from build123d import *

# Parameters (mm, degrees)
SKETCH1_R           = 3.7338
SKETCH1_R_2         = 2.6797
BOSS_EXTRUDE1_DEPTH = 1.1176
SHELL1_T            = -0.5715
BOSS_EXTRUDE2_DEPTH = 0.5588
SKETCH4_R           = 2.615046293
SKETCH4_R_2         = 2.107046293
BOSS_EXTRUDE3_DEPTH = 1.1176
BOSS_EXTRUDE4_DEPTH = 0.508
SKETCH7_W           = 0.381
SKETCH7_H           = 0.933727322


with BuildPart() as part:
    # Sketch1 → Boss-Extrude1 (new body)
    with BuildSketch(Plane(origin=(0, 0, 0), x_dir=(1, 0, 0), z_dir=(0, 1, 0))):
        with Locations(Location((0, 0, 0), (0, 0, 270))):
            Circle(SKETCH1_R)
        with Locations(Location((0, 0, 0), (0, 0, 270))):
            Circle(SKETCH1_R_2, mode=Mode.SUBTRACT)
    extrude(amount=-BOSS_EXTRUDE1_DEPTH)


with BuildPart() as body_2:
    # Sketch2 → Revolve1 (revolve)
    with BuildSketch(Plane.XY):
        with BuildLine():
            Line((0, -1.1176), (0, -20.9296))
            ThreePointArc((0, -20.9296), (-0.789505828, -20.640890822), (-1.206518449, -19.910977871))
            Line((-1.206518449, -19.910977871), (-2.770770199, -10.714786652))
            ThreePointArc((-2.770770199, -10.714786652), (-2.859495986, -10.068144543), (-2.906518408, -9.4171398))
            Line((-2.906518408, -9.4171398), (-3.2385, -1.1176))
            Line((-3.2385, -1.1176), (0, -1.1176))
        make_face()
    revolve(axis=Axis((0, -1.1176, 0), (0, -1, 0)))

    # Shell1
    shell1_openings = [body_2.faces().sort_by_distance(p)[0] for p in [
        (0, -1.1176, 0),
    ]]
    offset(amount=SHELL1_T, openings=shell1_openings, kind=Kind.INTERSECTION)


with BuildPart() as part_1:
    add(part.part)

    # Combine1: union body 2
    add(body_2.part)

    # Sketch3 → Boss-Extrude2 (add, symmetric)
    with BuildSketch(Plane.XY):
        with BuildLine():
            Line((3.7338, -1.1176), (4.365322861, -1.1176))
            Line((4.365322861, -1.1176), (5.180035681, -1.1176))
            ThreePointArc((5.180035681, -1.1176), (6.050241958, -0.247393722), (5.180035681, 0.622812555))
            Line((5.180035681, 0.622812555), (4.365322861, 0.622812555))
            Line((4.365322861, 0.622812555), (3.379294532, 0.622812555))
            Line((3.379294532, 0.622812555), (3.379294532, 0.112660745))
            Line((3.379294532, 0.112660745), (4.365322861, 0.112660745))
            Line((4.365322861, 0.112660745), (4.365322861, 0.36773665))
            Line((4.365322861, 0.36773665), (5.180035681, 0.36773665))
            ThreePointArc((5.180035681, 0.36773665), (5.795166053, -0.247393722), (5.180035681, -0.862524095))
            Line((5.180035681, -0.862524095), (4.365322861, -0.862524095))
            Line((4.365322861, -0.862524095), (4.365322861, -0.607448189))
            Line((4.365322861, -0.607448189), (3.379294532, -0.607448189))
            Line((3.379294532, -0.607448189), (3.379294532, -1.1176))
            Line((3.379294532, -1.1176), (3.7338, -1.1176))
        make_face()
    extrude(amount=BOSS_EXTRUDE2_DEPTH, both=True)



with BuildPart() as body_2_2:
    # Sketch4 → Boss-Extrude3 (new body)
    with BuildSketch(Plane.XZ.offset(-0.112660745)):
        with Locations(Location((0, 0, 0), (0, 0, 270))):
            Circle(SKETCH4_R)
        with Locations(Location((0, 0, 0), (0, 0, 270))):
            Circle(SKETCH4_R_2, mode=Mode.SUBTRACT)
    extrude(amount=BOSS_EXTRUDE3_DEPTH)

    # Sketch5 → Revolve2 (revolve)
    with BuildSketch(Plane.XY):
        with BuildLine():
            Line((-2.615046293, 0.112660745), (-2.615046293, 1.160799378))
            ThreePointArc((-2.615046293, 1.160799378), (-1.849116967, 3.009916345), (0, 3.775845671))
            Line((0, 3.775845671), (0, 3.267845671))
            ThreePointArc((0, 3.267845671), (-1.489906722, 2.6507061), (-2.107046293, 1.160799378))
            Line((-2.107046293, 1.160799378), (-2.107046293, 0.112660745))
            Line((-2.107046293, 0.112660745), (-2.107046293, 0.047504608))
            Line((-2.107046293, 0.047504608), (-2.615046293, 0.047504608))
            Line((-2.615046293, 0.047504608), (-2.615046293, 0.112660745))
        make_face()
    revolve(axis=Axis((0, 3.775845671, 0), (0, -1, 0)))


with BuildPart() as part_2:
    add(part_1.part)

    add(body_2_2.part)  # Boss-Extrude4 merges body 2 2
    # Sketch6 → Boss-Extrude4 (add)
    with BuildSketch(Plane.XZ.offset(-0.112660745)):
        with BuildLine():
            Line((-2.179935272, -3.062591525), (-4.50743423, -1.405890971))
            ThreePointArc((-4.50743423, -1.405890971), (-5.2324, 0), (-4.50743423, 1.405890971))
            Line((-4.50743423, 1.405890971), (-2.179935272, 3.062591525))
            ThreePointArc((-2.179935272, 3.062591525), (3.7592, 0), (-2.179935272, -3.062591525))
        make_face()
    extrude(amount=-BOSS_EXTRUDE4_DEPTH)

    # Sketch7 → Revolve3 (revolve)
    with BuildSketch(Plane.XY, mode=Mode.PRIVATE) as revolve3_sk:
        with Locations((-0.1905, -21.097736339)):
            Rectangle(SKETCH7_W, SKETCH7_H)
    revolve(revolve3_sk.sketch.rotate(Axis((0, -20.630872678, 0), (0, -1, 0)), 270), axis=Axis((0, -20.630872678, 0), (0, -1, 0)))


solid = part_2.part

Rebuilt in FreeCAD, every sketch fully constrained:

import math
import FreeCAD as App
import Part
import Sketcher
from FreeCAD import Vector
Q = App.Units.Quantity


def faces_at(feature, points):
    """Names of the faces that lie closest to the given points."""
    faces = feature.Shape.Faces
    near = lambda p: min(range(len(faces)), key=lambda i: faces[i].distToShape(Part.Vertex(*p))[0])
    return sorted({f"Face{near(p) + 1}" for p in points})


def add_polygon(sketch, points):
    """Adds a closed chain of lines whose ends are joined by coincident constraints."""
    first, n = sketch.GeometryCount, len(points)
    for a, b in zip(points, points[1:] + points[:1]):
        sketch.addGeometry(Part.LineSegment(App.Vector(*a, 0), App.Vector(*b, 0)), False)
    for i in range(n):
        sketch.addConstraint(Sketcher.Constraint("Coincident", first + i, 2, first + (i + 1) % n, 1))

doc = App.newDocument("Part")
body = doc.addObject("PartDesign::Body", "Body")

# Sketch on XZ plane
sketch1 = doc.addObject("Sketcher::SketchObject", "Sketch")
body.addObject(sketch1)
sketch1.AttachmentSupport = (doc.XZ_Plane, [""])
sketch1.MapMode = "FlatFace"
sketch1.addGeometry(Part.Circle(Vector(0, 0, 0), Vector(0, 0, 1), 3.7), False)
sketch1.addGeometry(Part.Circle(Vector(0, 0, 0), Vector(0, 0, 1), 2.7), False)
sketch1.addConstraint(Sketcher.Constraint("Coincident", 0, 3, -1, 1))
sketch1.addConstraint(Sketcher.Constraint("Coincident", 1, 3, -1, 1))
sketch1.addConstraint(Sketcher.Constraint("Diameter", 0, Q("0.294 in")))
sketch1.addConstraint(Sketcher.Constraint("Diameter", 1, Q("0.211 in")))
pad1 = doc.addObject("PartDesign::Pad", "Pad")
body.addObject(pad1)
pad1.Profile = sketch1
pad1.Length = Q("0.044 in")
body2 = doc.addObject("PartDesign::Body", "Body001")

# Sketch on XY plane
sketch2 = doc.addObject("Sketcher::SketchObject", "Sketch001")
body2.addObject(sketch2)
sketch2.AttachmentSupport = (doc.getObject("XY_Plane001"), [""])
sketch2.MapMode = "FlatFace"
sketch2.addGeometry(Part.LineSegment(Vector(0, -20.9, 0), Vector(0, -1.1, 0)), False)
sketch2.addGeometry(Part.LineSegment(Vector(0, -1.1, 0), Vector(-3.2, -1.1, 0)), False)
sketch2.addGeometry(Part.LineSegment(Vector(-3.2, -1.1, 0), Vector(-2.9, -9.4, 0)), False)
sketch2.addGeometry(Part.ArcOfCircle(Part.Circle(Vector(7.2, -9, 0), Vector(0, 0, 1), 10.2), math.radians(-177.71), math.radians(-170.35)), False)
sketch2.addGeometry(Part.LineSegment(Vector(-2.8, -10.7, 0), Vector(-1.2, -19.9, 0)), False)
sketch2.addGeometry(Part.ArcOfCircle(Part.Circle(Vector(0, -19.7, 0), Vector(0, 0, 1), 1.2), math.radians(-170), math.radians(-90)), False)
sketch2.addConstraint(Sketcher.Constraint("Coincident", 0, 2, 1, 1))
sketch2.addConstraint(Sketcher.Constraint("Coincident", 1, 2, 2, 1))
sketch2.addConstraint(Sketcher.Constraint("Tangent", 2, 2, 3, 1))
sketch2.addConstraint(Sketcher.Constraint("Tangent", 3, 2, 4, 1))
sketch2.addConstraint(Sketcher.Constraint("Tangent", 4, 2, 5, 1))
sketch2.addConstraint(Sketcher.Constraint("Coincident", 5, 2, 0, 1))
sketch2.addConstraint(Sketcher.Constraint("Vertical", 0))
sketch2.addConstraint(Sketcher.Constraint("Horizontal", 1))
sketch2.addConstraint(Sketcher.Constraint("PointOnObject", 5, 3, -2))
sketch2.addConstraint(Sketcher.Constraint("PointOnObject", 0, 2, -2))
sketch2.addConstraint(Sketcher.Constraint("Radius", 3, Q("0.4 in")))
sketch2.addConstraint(Sketcher.Constraint("DistanceY", 0, 1, 0, 2, Q("0.78 in")))
sketch2.addConstraint(Sketcher.Constraint("DistanceX", 1, 2, 1, 1, Q("0.1275 in")))
sketch2.addConstraint(Sketcher.Constraint("DistanceY", 0, 2, -1, 1, Q("0.044 in")))
sketch2.addConstraint(Sketcher.Constraint("Radius", 5, Q("1.223848 mm")))
sketch2.addConstraint(Sketcher.Constraint("DistanceX", 2, 2, 4, 2, Q("1.7 mm")))
sketch2.addConstraint(Sketcher.Constraint("Distance", 4, Q("9.32828 mm")))
revolution = doc.addObject("PartDesign::Revolution", "Revolution")
body2.addObject(revolution)
revolution.Profile = sketch2
revolution.ReferenceAxis = (sketch2, ["V_Axis"])
revolution.Angle = 360
doc.recompute()

thickness = doc.addObject("PartDesign::Thickness", "Thickness")
body2.addObject(thickness)
thickness.Base = (revolution, faces_at(revolution, [(0, -1.118, 0)]))
thickness.Value = Q("0.0225 in")
thickness.Reversed = True
thickness.Join = "Intersection"
doc.recompute()

boolean = doc.addObject("PartDesign::Boolean", "Boolean")
body.addObject(boolean)
boolean.Type = "Fuse"
boolean.addObjects([body2])

# Sketch on XY plane
sketch3 = doc.addObject("Sketcher::SketchObject", "Sketch002")
body.addObject(sketch3)
sketch3.AttachmentSupport = (doc.XY_Plane, [""])
sketch3.MapMode = "FlatFace"
sketch3.addGeometry(Part.ArcOfCircle(Part.Circle(Vector(5.18, -0.25, 0), Vector(0, 0, 1), 0.87), math.radians(-90), math.radians(90)), False)
sketch3.addGeometry(Part.LineSegment(Vector(5.18, 0.62, 0), Vector(3.38, 0.62, 0)), False)
sketch3.addGeometry(Part.LineSegment(Vector(3.38, 0.62, 0), Vector(3.38, 0.11, 0)), False)
sketch3.addGeometry(Part.LineSegment(Vector(3.38, 0.11, 0), Vector(4.37, 0.11, 0)), False)
sketch3.addGeometry(Part.LineSegment(Vector(4.37, 0.11, 0), Vector(4.37, 0.37, 0)), False)
sketch3.addGeometry(Part.LineSegment(Vector(4.37, 0.37, 0), Vector(5.18, 0.37, 0)), False)
sketch3.addGeometry(Part.ArcOfCircle(Part.Circle(Vector(5.18, -0.25, 0), Vector(0, 0, 1), 0.62), math.radians(-90), math.radians(90)), False)
sketch3.addGeometry(Part.LineSegment(Vector(5.18, -0.86, 0), Vector(4.37, -0.86, 0)), False)
sketch3.addGeometry(Part.LineSegment(Vector(4.37, -0.86, 0), Vector(4.37, -0.61, 0)), False)
sketch3.addGeometry(Part.LineSegment(Vector(4.37, -0.61, 0), Vector(3.38, -0.61, 0)), False)
sketch3.addGeometry(Part.LineSegment(Vector(3.38, -0.61, 0), Vector(3.38, -1.12, 0)), False)
sketch3.addGeometry(Part.LineSegment(Vector(3.38, -1.12, 0), Vector(5.18, -1.12, 0)), False)
sketch3.addConstraint(Sketcher.Constraint("Tangent", 0, 2, 1, 1))
sketch3.addConstraint(Sketcher.Constraint("Coincident", 1, 2, 2, 1))
sketch3.addConstraint(Sketcher.Constraint("Coincident", 2, 2, 3, 1))
sketch3.addConstraint(Sketcher.Constraint("Coincident", 3, 2, 4, 1))
sketch3.addConstraint(Sketcher.Constraint("Coincident", 4, 2, 5, 1))
sketch3.addConstraint(Sketcher.Constraint("Tangent", 5, 2, 6, 2))
sketch3.addConstraint(Sketcher.Constraint("Tangent", 6, 1, 7, 1))
sketch3.addConstraint(Sketcher.Constraint("Coincident", 7, 2, 8, 1))
sketch3.addConstraint(Sketcher.Constraint("Coincident", 8, 2, 9, 1))
sketch3.addConstraint(Sketcher.Constraint("Coincident", 9, 2, 10, 1))
sketch3.addConstraint(Sketcher.Constraint("Coincident", 10, 2, 11, 1))
sketch3.addConstraint(Sketcher.Constraint("Tangent", 11, 2, 0, 1))
sketch3.addConstraint(Sketcher.Constraint("Horizontal", 1))
sketch3.addConstraint(Sketcher.Constraint("Vertical", 2))
sketch3.addConstraint(Sketcher.Constraint("Horizontal", 3))
sketch3.addConstraint(Sketcher.Constraint("Vertical", 4))
sketch3.addConstraint(Sketcher.Constraint("Horizontal", 5))
sketch3.addConstraint(Sketcher.Constraint("Horizontal", 7))
sketch3.addConstraint(Sketcher.Constraint("Vertical", 8))
sketch3.addConstraint(Sketcher.Constraint("Horizontal", 9))
sketch3.addConstraint(Sketcher.Constraint("Vertical", 10))
sketch3.addConstraint(Sketcher.Constraint("Horizontal", 11))
sketch3.addConstraint(Sketcher.Constraint("Coincident", 6, 3, 0, 3))
sketch3.addConstraint(Sketcher.Constraint("Vertical", 4, 2, 7, 2))
sketch3.addConstraint(Sketcher.Constraint("Vertical", 2, 2, 9, 2))
sketch3.addConstraint(Sketcher.Constraint("Equal", 4, 8))
sketch3.addConstraint(Sketcher.Constraint("DistanceY", 10, 2, -1, 1, Q("0.044 in")))
sketch3.addConstraint(Sketcher.Constraint("Radius", 6, Q("0.61513 mm")))
sketch3.addConstraint(Sketcher.Constraint("Radius", 0, Q("0.870206 mm")))
sketch3.addConstraint(Sketcher.Constraint("DistanceX", 1, 2, 1, 1, Q("1.800741 mm")))
sketch3.addConstraint(Sketcher.Constraint("DistanceX", 3, 1, 3, 2, Q("0.986028 mm")))
sketch3.addConstraint(Sketcher.Constraint("DistanceY", 2, 2, 2, 1, Q("0.510152 mm")))
sketch3.addConstraint(Sketcher.Constraint("DistanceX", -1, 1, 0, 3, Q("5.180036 mm")))
pad2 = doc.addObject("PartDesign::Pad", "Pad001")
body.addObject(pad2)
pad2.Profile = sketch3
pad2.Length = Q("0.044 in")
pad2.Midplane = True
body3 = doc.addObject("PartDesign::Body", "Body002")

# Sketch on XZ plane
sketch4 = doc.addObject("Sketcher::SketchObject", "Sketch003")
body3.addObject(sketch4)
sketch4.AttachmentSupport = (doc.getObject("XZ_Plane002"), [""])
sketch4.MapMode = "FlatFace"
sketch4.AttachmentOffset = App.Placement(Vector(0, 0, -0.112661), App.Rotation())
sketch4.addGeometry(Part.Circle(Vector(0, 0, 0), Vector(0, 0, 1), 2.6), False)
sketch4.addGeometry(Part.Circle(Vector(0, 0, 0), Vector(0, 0, 1), 2.1), False)
sketch4.addConstraint(Sketcher.Constraint("Coincident", 0, 3, -1, 1))
sketch4.addConstraint(Sketcher.Constraint("Coincident", 1, 3, -1, 1))
sketch4.addConstraint(Sketcher.Constraint("Diameter", 0, Q("5.230093 mm")))
sketch4.addConstraint(Sketcher.Constraint("Diameter", 1, Q("4.214093 mm")))
pad3 = doc.addObject("PartDesign::Pad", "Pad002")
body3.addObject(pad3)
pad3.Profile = sketch4
pad3.Length = Q("0.044 in")

# Sketch on XY plane
sketch5 = doc.addObject("Sketcher::SketchObject", "Sketch004")
body3.addObject(sketch5)
sketch5.AttachmentSupport = (doc.getObject("XY_Plane002"), [""])
sketch5.MapMode = "FlatFace"
sketch5.addGeometry(Part.ArcOfCircle(Part.Circle(Vector(0, 1.2, 0), Vector(0, 0, 1), 2.6), math.radians(90), math.radians(180)), False)
sketch5.addGeometry(Part.LineSegment(Vector(-2.6, 1.2, 0), Vector(-2.6, 0, 0)), False)
sketch5.addGeometry(Part.LineSegment(Vector(-2.6, 0, 0), Vector(-2.1, 0, 0)), False)
sketch5.addGeometry(Part.LineSegment(Vector(-2.1, 0, 0), Vector(-2.1, 1.2, 0)), False)
sketch5.addGeometry(Part.ArcOfCircle(Part.Circle(Vector(0, 1.2, 0), Vector(0, 0, 1), 2.1), math.radians(90), math.radians(180)), False)
sketch5.addGeometry(Part.LineSegment(Vector(0, 3.3, 0), Vector(0, 3.8, 0)), False)
sketch5.addConstraint(Sketcher.Constraint("Tangent", 0, 2, 1, 1))
sketch5.addConstraint(Sketcher.Constraint("Coincident", 1, 2, 2, 1))
sketch5.addConstraint(Sketcher.Constraint("Coincident", 2, 2, 3, 1))
sketch5.addConstraint(Sketcher.Constraint("Tangent", 3, 2, 4, 2))
sketch5.addConstraint(Sketcher.Constraint("Coincident", 4, 1, 5, 1))
sketch5.addConstraint(Sketcher.Constraint("Coincident", 5, 2, 0, 1))
sketch5.addConstraint(Sketcher.Constraint("Vertical", 1))
sketch5.addConstraint(Sketcher.Constraint("Horizontal", 2))
sketch5.addConstraint(Sketcher.Constraint("Vertical", 3))
sketch5.addConstraint(Sketcher.Constraint("Vertical", 5))
sketch5.addConstraint(Sketcher.Constraint("Coincident", 4, 3, 0, 3))
sketch5.addConstraint(Sketcher.Constraint("PointOnObject", 0, 3, -2))
sketch5.addConstraint(Sketcher.Constraint("PointOnObject", 4, 1, -2))
sketch5.addConstraint(Sketcher.Constraint("DistanceX", 2, 1, 2, 2, Q("0.02 in")))
sketch5.addConstraint(Sketcher.Constraint("Radius", 0, Q("2.615046 mm")))
sketch5.addConstraint(Sketcher.Constraint("DistanceY", -1, 1, 0, 3, Q("1.160799 mm")))
sketch5.addConstraint(Sketcher.Constraint("DistanceY", 1, 2, 1, 1, Q("1.113295 mm")))
revolution2 = doc.addObject("PartDesign::Revolution", "Revolution001")
body3.addObject(revolution2)
revolution2.Profile = sketch5
revolution2.ReferenceAxis = (sketch5, ["V_Axis"])
revolution2.Angle = 360
body.AllowCompound = True
doc.recompute()

boolean2 = doc.addObject("PartDesign::Boolean", "Boolean001")
body.addObject(boolean2)
boolean2.Type = "Fuse"
boolean2.addObjects([body3])

# Sketch on XZ plane
sketch6 = doc.addObject("Sketcher::SketchObject", "Sketch005")
body.addObject(sketch6)
sketch6.AttachmentSupport = (doc.XZ_Plane, [""])
sketch6.MapMode = "FlatFace"
sketch6.AttachmentOffset = App.Placement(Vector(0, 0, -0.112661), App.Rotation())
sketch6.addGeometry(Part.LineSegment(Vector(-4.5, -1.4, 0), Vector(-2.2, -3.1, 0)), False)
sketch6.addGeometry(Part.ArcOfCircle(Part.Circle(Vector(0, 0, 0), Vector(0, 0, 1), 3.8), math.radians(-125), math.radians(125)), False)
sketch6.addGeometry(Part.LineSegment(Vector(-2.2, 3.1, 0), Vector(-4.5, 1.4, 0)), False)
sketch6.addGeometry(Part.ArcOfCircle(Part.Circle(Vector(-3.5, 0, 0), Vector(0, 0, 1), 1.7), math.radians(125), math.radians(235)), False)
sketch6.addConstraint(Sketcher.Constraint("Tangent", 0, 2, 1, 1))
sketch6.addConstraint(Sketcher.Constraint("Tangent", 1, 2, 2, 1))
sketch6.addConstraint(Sketcher.Constraint("Tangent", 2, 2, 3, 1))
sketch6.addConstraint(Sketcher.Constraint("Tangent", 3, 2, 0, 1))
sketch6.addConstraint(Sketcher.Constraint("Coincident", 1, 3, -1, 1))
sketch6.addConstraint(Sketcher.Constraint("PointOnObject", 3, 3, -1))
sketch6.addConstraint(Sketcher.Constraint("Radius", 1, Q("0.148 in")))
sketch6.addConstraint(Sketcher.Constraint("Radius", 3, Q("1.725671 mm")))
sketch6.addConstraint(Sketcher.Constraint("DistanceY", 3, 2, 2, 2, Q("0.1107001 in")))
pad4 = doc.addObject("PartDesign::Pad", "Pad003")
body.addObject(pad4)
pad4.Profile = sketch6
pad4.Length = Q("0.02 in")
pad4.Reversed = True

# Sketch on XY plane
sketch7 = doc.addObject("Sketcher::SketchObject", "Sketch006")
body.addObject(sketch7)
sketch7.AttachmentSupport = (doc.XY_Plane, [""])
sketch7.MapMode = "FlatFace"
add_polygon(sketch7, [(-0.38, -20.63), (-0.38, -21.56), (0, -21.56), (0, -20.63)])  # lines 0-3
sketch7.addConstraint(Sketcher.Constraint("Vertical", 0))
sketch7.addConstraint(Sketcher.Constraint("Horizontal", 1))
sketch7.addConstraint(Sketcher.Constraint("Vertical", 2))
sketch7.addConstraint(Sketcher.Constraint("Horizontal", 3))
sketch7.addConstraint(Sketcher.Constraint("PointOnObject", 1, 2, -2))
sketch7.addConstraint(Sketcher.Constraint("DistanceX", 1, 1, 1, 2, Q("0.015 in")))
sketch7.addConstraint(Sketcher.Constraint("DistanceY", 0, 2, -1, 1, Q("0.849 in")))
sketch7.addConstraint(Sketcher.Constraint("DistanceY", 0, 2, 0, 1, Q("0.933727 mm")))
revolution3 = doc.addObject("PartDesign::Revolution", "Revolution002")
body.addObject(revolution3)
revolution3.Profile = sketch7
revolution3.ReferenceAxis = (sketch7, ["V_Axis"])
revolution3.Angle = 360

doc.recompute()
